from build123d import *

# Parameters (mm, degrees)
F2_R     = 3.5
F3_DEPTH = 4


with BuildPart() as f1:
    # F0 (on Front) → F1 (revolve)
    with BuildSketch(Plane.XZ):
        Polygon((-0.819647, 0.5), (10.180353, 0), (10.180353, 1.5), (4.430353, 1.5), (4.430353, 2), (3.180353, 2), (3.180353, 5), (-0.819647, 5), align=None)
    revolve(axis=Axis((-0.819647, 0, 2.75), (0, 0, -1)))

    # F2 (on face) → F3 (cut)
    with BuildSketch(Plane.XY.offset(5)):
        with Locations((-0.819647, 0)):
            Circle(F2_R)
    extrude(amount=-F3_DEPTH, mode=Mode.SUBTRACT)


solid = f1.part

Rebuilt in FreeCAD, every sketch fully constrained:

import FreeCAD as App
import Part
import Sketcher
from FreeCAD import Vector
Q = App.Units.Quantity


def add_polygon(sketch, points):
    """Adds a closed chain of lines whose ends are joined by coincident constraints."""
    first, n = sketch.GeometryCount, len(points)
    for a, b in zip(points, points[1:] + points[:1]):
        sketch.addGeometry(Part.LineSegment(App.Vector(*a, 0), App.Vector(*b, 0)), False)
    for i in range(n):
        sketch.addConstraint(Sketcher.Constraint("Coincident", first + i, 2, first + (i + 1) % n, 1))

doc = App.newDocument("Part")
body = doc.addObject("PartDesign::Body", "Body")

sketch1 = body.newObject("Sketcher::SketchObject", "Sketch")
sketch1.AttachmentSupport = (doc.getObject("XZ_Plane"), [""])
sketch1.MapMode = "FlatFace"
add_polygon(sketch1, [(-0.819647, 0.5), (10.180353, 0), (10.180353, 1.5), (4.430353, 1.5), (4.430353, 2), (3.180353, 2), (3.180353, 5), (-0.819647, 5)])
sketch1.addGeometry(Part.LineSegment(Vector(-0.819647, 5, 0), Vector(-0.819647, 0, 0)), True)
sketch1.addConstraint(Sketcher.Constraint("Vertical", 1))
sketch1.addConstraint(Sketcher.Constraint("Horizontal", 2))
sketch1.addConstraint(Sketcher.Constraint("Vertical", 3))
sketch1.addConstraint(Sketcher.Constraint("Horizontal", 4))
sketch1.addConstraint(Sketcher.Constraint("Vertical", 5))
sketch1.addConstraint(Sketcher.Constraint("Horizontal", 6))
sketch1.addConstraint(Sketcher.Constraint("Vertical", 7))
sketch1.addConstraint(Sketcher.Constraint("Vertical", 8))
sketch1.addConstraint(Sketcher.Constraint("Coincident", 8, 1, 6, 2))
sketch1.addConstraint(Sketcher.Constraint("PointOnObject", 0, 2, -1))
sketch1.addConstraint(Sketcher.Constraint("PointOnObject", 8, 2, -1))
sketch1.addConstraint(Sketcher.Constraint("DistanceX", 6, 2, 6, 1, Q("4 mm")))
sketch1.addConstraint(Sketcher.Constraint("DistanceY", 5, 1, 5, 2, Q("3 mm")))
sketch1.addConstraint(Sketcher.Constraint("DistanceY", 8, 2, 8, 1, Q("5 mm")))
sketch1.addConstraint(Sketcher.Constraint("DistanceY", 1, 1, 1, 2, Q("1.5 mm")))
sketch1.addConstraint(Sketcher.Constraint("DistanceY", 7, 2, 7, 1, Q("4.5 mm")))
sketch1.addConstraint(Sketcher.Constraint("DistanceX", 4, 2, 1, 2, Q("7 mm")))
sketch1.addConstraint(Sketcher.Constraint("DistanceX", 2, 2, 2, 1, Q("5.75 mm")))
sketch1.addConstraint(Sketcher.Constraint("DistanceX", -1, 1, 0, 2, Q("10.180353 mm")))
revolution = body.newObject("PartDesign::Revolution", "Revolution")
revolution.Profile = sketch1
revolution.ReferenceAxis = (sketch1, ["Axis0"])
revolution.Angle = 360

sketch2 = body.newObject("Sketcher::SketchObject", "Sketch001")
sketch2.AttachmentSupport = (doc.getObject("XY_Plane"), [""])
sketch2.MapMode = "FlatFace"
sketch2.AttachmentOffset = App.Placement(Vector(0, 0, 5), App.Rotation())
sketch2.addGeometry(Part.Circle(Vector(-0.819647, 0, 0), Vector(0, 0, 1), 3.5), False)
sketch2.addConstraint(Sketcher.Constraint("PointOnObject", 0, 3, -1))
sketch2.addConstraint(Sketcher.Constraint("Diameter", 0, Q("7 mm")))
sketch2.addConstraint(Sketcher.Constraint("DistanceX", 0, 3, -1, 1, Q("0.819647 mm")))
pocket1 = body.newObject("PartDesign::Pocket", "Pocket")
pocket1.Profile = sketch2
pocket1.Length = 4

doc.recompute()
